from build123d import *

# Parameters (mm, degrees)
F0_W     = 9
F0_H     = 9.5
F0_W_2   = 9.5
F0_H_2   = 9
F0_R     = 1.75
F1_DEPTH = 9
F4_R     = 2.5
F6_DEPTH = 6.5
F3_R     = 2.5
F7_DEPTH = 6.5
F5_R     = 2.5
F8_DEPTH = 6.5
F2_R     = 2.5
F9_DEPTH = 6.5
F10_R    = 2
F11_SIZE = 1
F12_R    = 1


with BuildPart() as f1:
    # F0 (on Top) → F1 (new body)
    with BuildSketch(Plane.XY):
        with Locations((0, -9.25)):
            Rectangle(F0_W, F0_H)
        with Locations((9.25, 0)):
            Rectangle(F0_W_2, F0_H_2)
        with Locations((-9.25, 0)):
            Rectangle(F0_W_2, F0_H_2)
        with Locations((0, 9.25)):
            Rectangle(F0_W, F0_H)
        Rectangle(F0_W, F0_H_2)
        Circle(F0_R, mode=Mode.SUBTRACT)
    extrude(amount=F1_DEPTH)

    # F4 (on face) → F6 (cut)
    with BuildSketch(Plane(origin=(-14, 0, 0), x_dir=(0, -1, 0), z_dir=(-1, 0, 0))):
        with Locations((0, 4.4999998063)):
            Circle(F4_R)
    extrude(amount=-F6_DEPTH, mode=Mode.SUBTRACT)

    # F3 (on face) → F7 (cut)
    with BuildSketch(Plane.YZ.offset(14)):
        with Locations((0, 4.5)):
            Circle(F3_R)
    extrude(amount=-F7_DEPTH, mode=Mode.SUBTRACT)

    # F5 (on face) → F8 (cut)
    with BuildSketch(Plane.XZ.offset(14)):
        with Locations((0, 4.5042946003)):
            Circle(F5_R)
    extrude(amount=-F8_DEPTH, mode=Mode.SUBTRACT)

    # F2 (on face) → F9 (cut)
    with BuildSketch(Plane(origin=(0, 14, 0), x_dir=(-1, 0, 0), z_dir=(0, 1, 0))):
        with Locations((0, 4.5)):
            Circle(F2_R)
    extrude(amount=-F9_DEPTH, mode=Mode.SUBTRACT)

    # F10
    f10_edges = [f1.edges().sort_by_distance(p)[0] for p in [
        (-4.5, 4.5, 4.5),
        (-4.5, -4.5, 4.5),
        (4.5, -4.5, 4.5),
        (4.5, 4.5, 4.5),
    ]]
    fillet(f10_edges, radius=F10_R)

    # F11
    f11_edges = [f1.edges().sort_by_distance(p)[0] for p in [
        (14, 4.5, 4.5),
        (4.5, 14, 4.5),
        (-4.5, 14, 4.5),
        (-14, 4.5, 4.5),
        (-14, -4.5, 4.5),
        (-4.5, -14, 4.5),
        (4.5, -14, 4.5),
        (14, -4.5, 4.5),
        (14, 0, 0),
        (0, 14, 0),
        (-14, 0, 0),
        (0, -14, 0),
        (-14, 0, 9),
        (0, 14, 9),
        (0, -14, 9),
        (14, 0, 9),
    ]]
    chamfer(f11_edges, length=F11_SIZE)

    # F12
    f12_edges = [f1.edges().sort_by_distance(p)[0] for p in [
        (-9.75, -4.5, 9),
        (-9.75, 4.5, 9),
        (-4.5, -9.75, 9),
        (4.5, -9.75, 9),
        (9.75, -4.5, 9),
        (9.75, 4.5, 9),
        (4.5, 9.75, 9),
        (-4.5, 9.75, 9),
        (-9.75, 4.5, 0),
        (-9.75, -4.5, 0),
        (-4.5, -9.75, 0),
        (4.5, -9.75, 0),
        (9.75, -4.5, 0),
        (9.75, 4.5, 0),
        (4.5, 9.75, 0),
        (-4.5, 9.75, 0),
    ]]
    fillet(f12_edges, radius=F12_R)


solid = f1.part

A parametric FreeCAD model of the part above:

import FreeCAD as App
import Part
import Sketcher


def edges_at(feature, points):
    """Names of the edges that pass closest to the given points."""
    edges = feature.Shape.Edges
    near = lambda p: min(range(len(edges)), key=lambda i: edges[i].distToShape(Part.Vertex(*p))[0])
    return sorted({f"Edge{near(p) + 1}" for p in points})

doc = App.newDocument("Part")
params = doc.addObject("Spreadsheet::Sheet", "Params")
for row, (alias, value) in enumerate([
    ("sketch1_diameter", "3.5 mm"),
    ("sketch1_width", "9 mm"),
    ("sketch1_width2", "9.5 mm"),
    ("pad1_length", "9 mm"),
    ("sketch2_diameter", "5 mm"),
    ("pocket1_length", "6.5 mm"),
    ("sketch3_diameter", "5 mm"),
    ("pocket2_length", "6.5 mm"),
    ("sketch4_diameter", "5 mm"),
    ("pocket3_length", "6.5 mm"),
    ("sketch5_diameter", "5 mm"),
    ("pocket4_length", "6.5 mm"),
    ("fillet_radius", "2 mm"),
    ("chamfer_size", "1 mm"),
    ("fillet2_radius", "1 mm"),
], start=1):
    params.set(f"A{row}", alias)
    params.set(f"B{row}", "=" + value)
    params.setAlias(f"B{row}", alias)

body = doc.addObject("PartDesign::Body", "Body")

sketch1 = body.newObject("Sketcher::SketchObject", "Sketch")
sketch1.AttachmentSupport = (doc.getObject("XY_Plane"), [""])
sketch1.MapMode = "FlatFace"
sketch1.addGeometry([
    Part.LineSegment(App.Vector(-4.5, -4.5, 0), App.Vector(-4.5, -14, 0)),
    Part.LineSegment(App.Vector(-4.5, -14, 0), App.Vector(4.5, -14, 0)),
    Part.LineSegment(App.Vector(4.5, -14, 0), App.Vector(4.5, -4.5, 0)),
    Part.LineSegment(App.Vector(4.5, -4.5, 0), App.Vector(14, -4.5, 0)),
    Part.LineSegment(App.Vector(14, -4.5, 0), App.Vector(14, 4.5, 0)),
    Part.LineSegment(App.Vector(14, 4.5, 0), App.Vector(4.5, 4.5, 0)),
    Part.LineSegment(App.Vector(4.5, 4.5, 0), App.Vector(4.5, 14, 0)),
    Part.LineSegment(App.Vector(4.5, 14, 0), App.Vector(-4.5, 14, 0)),
    Part.LineSegment(App.Vector(-4.5, 14, 0), App.Vector(-4.5, 4.5, 0)),
    Part.LineSegment(App.Vector(-4.5, 4.5, 0), App.Vector(-14, 4.5, 0)),
    Part.LineSegment(App.Vector(-14, 4.5, 0), App.Vector(-14, -4.5, 0)),
    Part.LineSegment(App.Vector(-14, -4.5, 0), App.Vector(-4.5, -4.5, 0)),
    Part.Circle(App.Vector(0, 0, 0), App.Vector(0, 0, 1), 1.75),
], False)
sketch1.addConstraint([
    Sketcher.Constraint("Coincident", 0, 2, 1, 1),
    Sketcher.Constraint("Coincident", 1, 2, 2, 1),
    Sketcher.Constraint("Coincident", 2, 2, 3, 1),
    Sketcher.Constraint("Coincident", 3, 2, 4, 1),
    Sketcher.Constraint("Coincident", 4, 2, 5, 1),
    Sketcher.Constraint("Coincident", 5, 2, 6, 1),
    Sketcher.Constraint("Coincident", 6, 2, 7, 1),
    Sketcher.Constraint("Coincident", 7, 2, 8, 1),
    Sketcher.Constraint("Coincident", 8, 2, 9, 1),
    Sketcher.Constraint("Coincident", 9, 2, 10, 1),
    Sketcher.Constraint("Coincident", 10, 2, 11, 1),
    Sketcher.Constraint("Coincident", 11, 2, 0, 1),
    Sketcher.Constraint("Vertical", 0),
    Sketcher.Constraint("Horizontal", 1),
    Sketcher.Constraint("Vertical", 2),
    Sketcher.Constraint("Horizontal", 3),
    Sketcher.Constraint("Vertical", 4),
    Sketcher.Constraint("Horizontal", 5),
    Sketcher.Constraint("Vertical", 6),
    Sketcher.Constraint("Horizontal", 7),
    Sketcher.Constraint("Vertical", 8),
    Sketcher.Constraint("Horizontal", 9),
    Sketcher.Constraint("Vertical", 10),
    Sketcher.Constraint("Horizontal", 11),
    Sketcher.Constraint("Coincident", 12, 3, -1, 1),
    Sketcher.Constraint("Symmetric", 0, 2, 6, 2, -1, 1),
    Sketcher.Constraint("Symmetric", 2, 2, 8, 2, -1, 1),
    Sketcher.Constraint("Symmetric", 4, 2, 10, 2, -1, 1),
    Sketcher.Constraint("Symmetric", 5, 2, 8, 2, -2),
    Sketcher.Constraint("Equal", 11, 0),
    Sketcher.Constraint("Equal", 7, 4),
    Sketcher.Constraint("Diameter", 12, 3.5),
    Sketcher.Constraint("DistanceX", 1, 1, 1, 2, 9.0),
    Sketcher.Constraint("DistanceX", 3, 1, 3, 2, 9.5),
])
sketch1.setExpression("Constraints[31]", "Params.sketch1_diameter")
sketch1.setExpression("Constraints[32]", "Params.sketch1_width")
sketch1.setExpression("Constraints[33]", "Params.sketch1_width2")
pad1 = body.newObject("PartDesign::Pad", "Pad")
pad1.Profile = sketch1
pad1.setExpression("Length", "Params.pad1_length")

sketch2 = body.newObject("Sketcher::SketchObject", "Sketch001")
sketch2.AttachmentSupport = (doc.getObject("YZ_Plane"), [""])
sketch2.MapMode = "FlatFace"
sketch2.AttachmentOffset = App.Placement(App.Vector(0, 0, -14), App.Rotation())
sketch2.addGeometry(Part.Circle(App.Vector(0, 4.5, 0), App.Vector(0, 0, 1), 2.5), False)
sketch2.addConstraint([
    Sketcher.Constraint("PointOnObject", 0, 3, -2),
    Sketcher.Constraint("Diameter", 0, 5.0),
    Sketcher.Constraint("DistanceY", -1, 1, 0, 3, 4.5),
])
sketch2.setExpression("Constraints[1]", "Params.sketch2_diameter")
pocket1 = body.newObject("PartDesign::Pocket", "Pocket")
pocket1.Profile = sketch2
pocket1.setExpression("Length", "Params.pocket1_length")
pocket1.Reversed = True

sketch3 = body.newObject("Sketcher::SketchObject", "Sketch002")
sketch3.AttachmentSupport = (doc.getObject("YZ_Plane"), [""])
sketch3.MapMode = "FlatFace"
sketch3.AttachmentOffset = App.Placement(App.Vector(0, 0, 14), App.Rotation())
sketch3.addGeometry(Part.Circle(App.Vector(0, 4.5, 0), App.Vector(0, 0, 1), 2.5), False)
sketch3.addConstraint([
    Sketcher.Constraint("PointOnObject", 0, 3, -2),
    Sketcher.Constraint("Diameter", 0, 5.0),
    Sketcher.Constraint("DistanceY", -1, 1, 0, 3, 4.5),
])
sketch3.setExpression("Constraints[1]", "Params.sketch3_diameter")
pocket2 = body.newObject("PartDesign::Pocket", "Pocket001")
pocket2.Profile = sketch3
pocket2.setExpression("Length", "Params.pocket2_length")

sketch4 = body.newObject("Sketcher::SketchObject", "Sketch003")
sketch4.AttachmentSupport = (doc.getObject("XZ_Plane"), [""])
sketch4.MapMode = "FlatFace"
sketch4.AttachmentOffset = App.Placement(App.Vector(0, 0, 14), App.Rotation())
sketch4.addGeometry(Part.Circle(App.Vector(0, 4.504295, 0), App.Vector(0, 0, 1), 2.5), False)
sketch4.addConstraint([
    Sketcher.Constraint("PointOnObject", 0, 3, -2),
    Sketcher.Constraint("Diameter", 0, 5.0),
    Sketcher.Constraint("DistanceY", -1, 1, 0, 3, 4.504295),
])
sketch4.setExpression("Constraints[1]", "Params.sketch4_diameter")
pocket3 = body.newObject("PartDesign::Pocket", "Pocket002")
pocket3.Profile = sketch4
pocket3.setExpression("Length", "Params.pocket3_length")

sketch5 = body.newObject("Sketcher::SketchObject", "Sketch004")
sketch5.AttachmentSupport = (doc.getObject("XZ_Plane"), [""])
sketch5.MapMode = "FlatFace"
sketch5.AttachmentOffset = App.Placement(App.Vector(0, 0, -14), App.Rotation())
sketch5.addGeometry(Part.Circle(App.Vector(0, 4.5, 0), App.Vector(0, 0, 1), 2.5), False)
sketch5.addConstraint([
    Sketcher.Constraint("PointOnObject", 0, 3, -2),
    Sketcher.Constraint("Diameter", 0, 5.0),
    Sketcher.Constraint("DistanceY", -1, 1, 0, 3, 4.5),
])
sketch5.setExpression("Constraints[1]", "Params.sketch5_diameter")
pocket4 = body.newObject("PartDesign::Pocket", "Pocket003")
pocket4.Profile = sketch5
pocket4.setExpression("Length", "Params.pocket4_length")
pocket4.Reversed = True
doc.recompute()

fillet = body.newObject("PartDesign::Fillet", "Fillet")
fillet.Base = (pocket4, edges_at(pocket4, [
    (-4.5, 4.5, 4.5),
    (-4.5, -4.5, 4.5),
    (4.5, -4.5, 4.5),
    (4.5, 4.5, 4.5),
]))
fillet.setExpression("Radius", "Params.fillet_radius")
doc.recompute()

chamfer = body.newObject("PartDesign::Chamfer", "Chamfer")
chamfer.Base = (fillet, edges_at(fillet, [
    (14, 4.5, 4.5),
    (4.5, 14, 4.5),
    (-4.5, 14, 4.5),
    (-14, 4.5, 4.5),
    (-14, -4.5, 4.5),
    (-4.5, -14, 4.5),
    (4.5, -14, 4.5),
    (14, -4.5, 4.5),
    (14, 0, 0),
    (0, 14, 0),
    (-14, 0, 0),
    (0, -14, 0),
    (-14, 0, 9),
    (0, 14, 9),
    (0, -14, 9),
    (14, 0, 9),
]))
chamfer.setExpression("Size", "Params.chamfer_size")
doc.recompute()

fillet2 = body.newObject("PartDesign::Fillet", "Fillet001")
fillet2.Base = (chamfer, edges_at(chamfer, [
    (-9.75, -4.5, 9),
    (-9.75, 4.5, 9),
    (-4.5, -9.75, 9),
    (4.5, -9.75, 9),
    (9.75, -4.5, 9),
    (9.75, 4.5, 9),
    (4.5, 9.75, 9),
    (-4.5, 9.75, 9),
    (-9.75, 4.5, 0),
    (-9.75, -4.5, 0),
    (-4.5, -9.75, 0),
    (4.5, -9.75, 0),
    (9.75, -4.5, 0),
    (9.75, 4.5, 0),
    (4.5, 9.75, 0),
    (-4.5, 9.75, 0),
]))
fillet2.setExpression("Radius", "Params.fillet2_radius")

doc.recompute()
